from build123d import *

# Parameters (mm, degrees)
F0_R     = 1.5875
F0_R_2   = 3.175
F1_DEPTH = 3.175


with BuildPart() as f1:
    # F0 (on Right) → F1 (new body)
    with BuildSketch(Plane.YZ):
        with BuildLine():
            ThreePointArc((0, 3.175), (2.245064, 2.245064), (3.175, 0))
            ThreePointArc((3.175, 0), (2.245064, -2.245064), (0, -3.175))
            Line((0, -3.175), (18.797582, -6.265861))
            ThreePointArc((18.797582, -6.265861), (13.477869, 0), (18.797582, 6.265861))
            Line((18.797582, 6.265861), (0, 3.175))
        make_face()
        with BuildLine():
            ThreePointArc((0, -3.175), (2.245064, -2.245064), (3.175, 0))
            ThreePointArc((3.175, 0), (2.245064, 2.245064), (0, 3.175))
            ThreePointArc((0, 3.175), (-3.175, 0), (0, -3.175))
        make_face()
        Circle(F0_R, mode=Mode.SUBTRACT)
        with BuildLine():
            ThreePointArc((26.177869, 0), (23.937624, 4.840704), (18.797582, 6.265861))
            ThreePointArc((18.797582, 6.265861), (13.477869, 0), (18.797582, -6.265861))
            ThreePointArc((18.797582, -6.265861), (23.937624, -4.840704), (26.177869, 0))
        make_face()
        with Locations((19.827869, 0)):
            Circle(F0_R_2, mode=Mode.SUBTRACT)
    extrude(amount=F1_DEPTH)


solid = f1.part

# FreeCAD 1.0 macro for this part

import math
import FreeCAD as App
import Part
import Sketcher
Q = App.Units.Quantity

doc = App.newDocument("Part")
body = doc.addObject("PartDesign::Body", "Body")

sketch1 = doc.addObject("Sketcher::SketchObject", "Sketch")
body.addObject(sketch1)
sketch1.AttachmentSupport = (doc.YZ_Plane, [""])
sketch1.MapMode = "FlatFace"
sketch1.addGeometry([
    Part.LineSegment(App.Vector(0, -3.2, 0), App.Vector(18.8, -6.3, 0)),
    Part.ArcOfCircle(Part.Circle(App.Vector(19.8, 0, 0), App.Vector(0, 0, 1), 6.4), math.radians(-99), math.radians(0)),
    Part.ArcOfCircle(Part.Circle(App.Vector(19.8, 0, 0), App.Vector(0, 0, 1), 6.4), math.radians(0), math.radians(99)),
    Part.LineSegment(App.Vector(18.8, 6.3, 0), App.Vector(0, 3.2, 0)),
    Part.ArcOfCircle(Part.Circle(App.Vector(0, 0, 0), App.Vector(0, 0, 1), 3.2), math.radians(90), math.radians(270)),
    Part.Circle(App.Vector(0, 0, 0), App.Vector(0, 0, 1), 1.6),
    Part.Circle(App.Vector(19.8, 0, 0), App.Vector(0, 0, 1), 3.2),
], False)
sketch1.addConstraint([
    Sketcher.Constraint("Tangent", 0, 2, 1, 1),
    Sketcher.Constraint("Tangent", 1, 2, 2, 1),
    Sketcher.Constraint("Tangent", 2, 2, 3, 1),
    Sketcher.Constraint("Coincident", 3, 2, 4, 1),
    Sketcher.Constraint("Coincident", 4, 2, 0, 1),
    Sketcher.Constraint("Coincident", 4, 3, -1, 1),
    Sketcher.Constraint("Coincident", 5, 3, -1, 1),
    Sketcher.Constraint("Coincident", 6, 3, 1, 3),
    Sketcher.Constraint("Equal", 1, 2),
    Sketcher.Constraint("Equal", 4, 6),
    Sketcher.Constraint("Symmetric", 0, 2, 2, 2, -1),
    Sketcher.Constraint("PointOnObject", 1, 2, -1),
    Sketcher.Constraint("PointOnObject", 3, 2, -2),
    Sketcher.Constraint("Diameter", 6, Q("0.25 in")),
    Sketcher.Constraint("Radius", 1, Q("0.25 in")),
    Sketcher.Constraint("Diameter", 5, Q("0.125 in")),
    Sketcher.Constraint("Distance", 0, Q("0.75 in")),
])
pad1 = doc.addObject("PartDesign::Pad", "Pad")
body.addObject(pad1)
pad1.Profile = sketch1
pad1.Length = Q("0.125 in")

doc.recompute()
